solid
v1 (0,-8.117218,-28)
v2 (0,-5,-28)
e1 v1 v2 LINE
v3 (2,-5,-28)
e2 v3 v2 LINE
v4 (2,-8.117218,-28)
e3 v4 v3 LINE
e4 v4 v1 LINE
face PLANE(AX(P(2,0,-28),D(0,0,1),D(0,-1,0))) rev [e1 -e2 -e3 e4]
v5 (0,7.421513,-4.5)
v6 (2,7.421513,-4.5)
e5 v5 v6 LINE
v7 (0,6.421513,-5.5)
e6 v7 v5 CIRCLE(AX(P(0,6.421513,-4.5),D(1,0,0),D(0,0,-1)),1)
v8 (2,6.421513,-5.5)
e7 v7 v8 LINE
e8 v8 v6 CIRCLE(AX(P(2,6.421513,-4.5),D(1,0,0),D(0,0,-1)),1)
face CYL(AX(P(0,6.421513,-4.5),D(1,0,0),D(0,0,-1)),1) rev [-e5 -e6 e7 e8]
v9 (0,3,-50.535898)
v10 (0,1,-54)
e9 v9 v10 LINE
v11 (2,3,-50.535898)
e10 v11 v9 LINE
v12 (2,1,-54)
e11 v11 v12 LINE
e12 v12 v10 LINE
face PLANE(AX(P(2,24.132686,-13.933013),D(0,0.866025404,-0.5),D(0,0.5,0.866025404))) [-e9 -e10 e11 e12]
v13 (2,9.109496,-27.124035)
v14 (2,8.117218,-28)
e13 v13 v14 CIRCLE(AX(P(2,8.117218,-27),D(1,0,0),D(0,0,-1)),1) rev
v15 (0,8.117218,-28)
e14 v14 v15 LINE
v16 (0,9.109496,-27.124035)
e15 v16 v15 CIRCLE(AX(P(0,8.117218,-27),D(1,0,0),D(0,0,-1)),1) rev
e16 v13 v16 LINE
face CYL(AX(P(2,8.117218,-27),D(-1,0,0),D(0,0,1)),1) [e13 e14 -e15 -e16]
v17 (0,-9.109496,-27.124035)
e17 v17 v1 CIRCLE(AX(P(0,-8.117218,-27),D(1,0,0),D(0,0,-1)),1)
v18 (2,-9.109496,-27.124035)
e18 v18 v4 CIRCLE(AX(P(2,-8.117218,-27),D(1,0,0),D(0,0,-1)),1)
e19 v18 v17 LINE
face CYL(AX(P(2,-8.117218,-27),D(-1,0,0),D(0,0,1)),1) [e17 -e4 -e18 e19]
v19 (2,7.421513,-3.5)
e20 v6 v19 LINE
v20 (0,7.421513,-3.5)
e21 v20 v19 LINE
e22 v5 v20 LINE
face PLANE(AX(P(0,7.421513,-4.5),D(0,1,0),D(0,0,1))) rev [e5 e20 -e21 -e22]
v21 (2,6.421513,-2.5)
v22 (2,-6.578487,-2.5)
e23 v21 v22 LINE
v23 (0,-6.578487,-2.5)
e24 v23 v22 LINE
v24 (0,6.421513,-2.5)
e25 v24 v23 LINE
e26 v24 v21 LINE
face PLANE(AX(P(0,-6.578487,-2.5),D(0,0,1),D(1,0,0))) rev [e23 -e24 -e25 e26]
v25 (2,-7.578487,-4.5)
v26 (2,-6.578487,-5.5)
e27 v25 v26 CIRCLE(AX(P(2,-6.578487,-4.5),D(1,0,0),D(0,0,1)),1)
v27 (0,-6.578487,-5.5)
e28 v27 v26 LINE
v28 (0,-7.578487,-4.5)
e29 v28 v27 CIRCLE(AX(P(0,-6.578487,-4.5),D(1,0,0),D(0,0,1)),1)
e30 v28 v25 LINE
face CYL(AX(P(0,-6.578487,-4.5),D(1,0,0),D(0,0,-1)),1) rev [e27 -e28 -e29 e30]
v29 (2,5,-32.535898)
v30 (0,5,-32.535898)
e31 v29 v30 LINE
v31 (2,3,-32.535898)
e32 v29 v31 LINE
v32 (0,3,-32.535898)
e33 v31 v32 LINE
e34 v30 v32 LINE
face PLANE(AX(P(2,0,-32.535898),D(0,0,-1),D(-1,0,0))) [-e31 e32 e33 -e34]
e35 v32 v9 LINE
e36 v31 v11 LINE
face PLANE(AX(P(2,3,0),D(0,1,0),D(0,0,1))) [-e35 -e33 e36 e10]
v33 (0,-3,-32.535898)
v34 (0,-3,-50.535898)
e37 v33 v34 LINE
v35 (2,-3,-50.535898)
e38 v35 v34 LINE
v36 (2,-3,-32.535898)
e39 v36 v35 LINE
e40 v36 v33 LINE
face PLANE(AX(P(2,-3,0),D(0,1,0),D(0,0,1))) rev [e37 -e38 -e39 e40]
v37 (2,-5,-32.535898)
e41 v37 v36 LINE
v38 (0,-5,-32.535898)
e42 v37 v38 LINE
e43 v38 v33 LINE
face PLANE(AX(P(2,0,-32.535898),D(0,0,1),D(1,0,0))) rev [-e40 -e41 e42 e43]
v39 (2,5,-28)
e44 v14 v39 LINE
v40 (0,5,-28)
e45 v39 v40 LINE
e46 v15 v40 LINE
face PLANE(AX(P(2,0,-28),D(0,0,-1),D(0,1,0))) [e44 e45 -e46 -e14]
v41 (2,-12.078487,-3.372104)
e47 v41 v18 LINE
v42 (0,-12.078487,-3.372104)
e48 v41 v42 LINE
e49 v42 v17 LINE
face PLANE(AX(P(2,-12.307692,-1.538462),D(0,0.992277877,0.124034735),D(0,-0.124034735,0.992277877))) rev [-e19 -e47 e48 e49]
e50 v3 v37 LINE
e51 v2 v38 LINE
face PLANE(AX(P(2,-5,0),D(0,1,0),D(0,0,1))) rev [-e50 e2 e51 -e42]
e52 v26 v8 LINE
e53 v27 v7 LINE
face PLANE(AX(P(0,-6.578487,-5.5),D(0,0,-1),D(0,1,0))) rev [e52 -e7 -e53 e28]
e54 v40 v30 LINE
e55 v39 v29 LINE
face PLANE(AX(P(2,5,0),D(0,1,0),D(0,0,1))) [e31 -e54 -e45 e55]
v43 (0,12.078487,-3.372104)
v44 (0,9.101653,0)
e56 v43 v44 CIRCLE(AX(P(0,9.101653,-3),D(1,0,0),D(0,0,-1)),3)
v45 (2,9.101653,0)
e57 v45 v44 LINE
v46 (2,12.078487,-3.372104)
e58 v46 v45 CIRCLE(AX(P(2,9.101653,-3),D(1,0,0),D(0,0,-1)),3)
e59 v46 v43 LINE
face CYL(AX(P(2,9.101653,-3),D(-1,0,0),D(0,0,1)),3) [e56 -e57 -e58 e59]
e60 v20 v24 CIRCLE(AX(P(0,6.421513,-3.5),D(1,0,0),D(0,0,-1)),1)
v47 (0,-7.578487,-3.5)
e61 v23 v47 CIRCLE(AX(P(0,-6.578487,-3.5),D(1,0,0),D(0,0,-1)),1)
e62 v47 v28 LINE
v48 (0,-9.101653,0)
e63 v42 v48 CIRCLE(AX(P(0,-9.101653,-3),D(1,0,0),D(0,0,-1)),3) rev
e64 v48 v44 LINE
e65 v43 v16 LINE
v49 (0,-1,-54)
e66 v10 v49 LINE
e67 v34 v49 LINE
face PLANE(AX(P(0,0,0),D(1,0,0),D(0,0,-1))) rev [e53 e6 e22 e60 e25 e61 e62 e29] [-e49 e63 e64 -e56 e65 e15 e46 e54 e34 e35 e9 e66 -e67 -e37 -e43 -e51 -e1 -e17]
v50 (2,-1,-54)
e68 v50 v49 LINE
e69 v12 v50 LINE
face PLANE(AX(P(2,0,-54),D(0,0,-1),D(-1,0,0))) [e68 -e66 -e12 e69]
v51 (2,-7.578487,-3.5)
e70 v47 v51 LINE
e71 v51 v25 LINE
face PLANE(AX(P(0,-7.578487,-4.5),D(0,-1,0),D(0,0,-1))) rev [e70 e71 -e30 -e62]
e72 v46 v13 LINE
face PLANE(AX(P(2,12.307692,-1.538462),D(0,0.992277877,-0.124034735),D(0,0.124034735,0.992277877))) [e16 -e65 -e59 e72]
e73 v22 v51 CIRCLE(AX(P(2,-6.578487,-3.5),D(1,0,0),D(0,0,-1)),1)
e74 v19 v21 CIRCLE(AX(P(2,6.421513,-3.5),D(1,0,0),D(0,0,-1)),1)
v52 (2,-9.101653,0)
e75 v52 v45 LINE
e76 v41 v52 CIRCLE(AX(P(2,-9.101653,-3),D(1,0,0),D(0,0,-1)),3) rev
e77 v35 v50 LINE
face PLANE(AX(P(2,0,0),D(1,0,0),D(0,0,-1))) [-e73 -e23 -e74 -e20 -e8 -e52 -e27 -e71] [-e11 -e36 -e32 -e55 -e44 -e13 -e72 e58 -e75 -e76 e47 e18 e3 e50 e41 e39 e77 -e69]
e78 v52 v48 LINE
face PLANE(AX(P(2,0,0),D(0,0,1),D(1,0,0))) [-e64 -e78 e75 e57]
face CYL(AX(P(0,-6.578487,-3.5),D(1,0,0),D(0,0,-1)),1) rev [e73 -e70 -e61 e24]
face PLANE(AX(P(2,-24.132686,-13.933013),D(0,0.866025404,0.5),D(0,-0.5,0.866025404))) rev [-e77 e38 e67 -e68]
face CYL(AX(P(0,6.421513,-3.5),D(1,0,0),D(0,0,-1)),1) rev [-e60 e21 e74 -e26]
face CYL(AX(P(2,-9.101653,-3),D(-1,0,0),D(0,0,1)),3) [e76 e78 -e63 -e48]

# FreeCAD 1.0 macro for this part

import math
import FreeCAD as App
import Part
import Sketcher

V = App.Vector
Q = App.Units.Quantity

doc = App.newDocument("Part")
body = doc.addObject("PartDesign::Body", "Body")

sketch1 = body.newObject("Sketcher::SketchObject", "Sketch")
sketch1.AttachmentSupport = (doc.getObject("YZ_Plane"), [""])
sketch1.MapMode = "FlatFace"
sketch1.addGeometry([
    Part.LineSegment(V(9.101653, 0, 0), V(-9.101653, 0, 0)),
    Part.ArcOfCircle(Part.Circle(V(-9.101653, -3, 0), V(0, 0, 1), 3), math.radians(90), math.radians(187.125016)),
    Part.LineSegment(V(-12.078487, -3.372104, 0), V(-9.109496, -27.124035, 0)),
    Part.ArcOfCircle(Part.Circle(V(-8.117218, -27, 0), V(0, 0, 1), 1), math.radians(-172.874984), math.radians(-90)),
    Part.LineSegment(V(-8.117218, -28, 0), V(-5, -28, 0)),
    Part.LineSegment(V(-5, -28, 0), V(-5, -32.535898, 0)),
    Part.LineSegment(V(-5, -32.535898, 0), V(-3, -32.535898, 0)),
    Part.LineSegment(V(-3, -32.535898, 0), V(-3, -50.535898, 0)),
    Part.LineSegment(V(-3, -50.535898, 0), V(-1, -54, 0)),
    Part.LineSegment(V(-1, -54, 0), V(1, -54, 0)),
    Part.LineSegment(V(1, -54, 0), V(3, -50.535898, 0)),
    Part.LineSegment(V(3, -50.535898, 0), V(3, -32.535898, 0)),
    Part.LineSegment(V(3, -32.535898, 0), V(5, -32.535898, 0)),
    Part.LineSegment(V(5, -32.535898, 0), V(5, -28, 0)),
    Part.LineSegment(V(5, -28, 0), V(8.117218, -28, 0)),
    Part.ArcOfCircle(Part.Circle(V(8.117218, -27, 0), V(0, 0, 1), 1), math.radians(-90), math.radians(-7.125016)),
    Part.LineSegment(V(9.109496, -27.124035, 0), V(12.078487, -3.372104, 0)),
    Part.ArcOfCircle(Part.Circle(V(9.101653, -3, 0), V(0, 0, 1), 3), math.radians(-7.125016), math.radians(90)),
], False)
sketch1.addConstraint([
    Sketcher.Constraint("Tangent", 0, 2, 1, 1),
    Sketcher.Constraint("Tangent", 1, 2, 2, 1),
    Sketcher.Constraint("Tangent", 2, 2, 3, 1),
    Sketcher.Constraint("Tangent", 3, 2, 4, 1),
    Sketcher.Constraint("Coincident", 4, 2, 5, 1),
    Sketcher.Constraint("Coincident", 5, 2, 6, 1),
    Sketcher.Constraint("Coincident", 6, 2, 7, 1),
    Sketcher.Constraint("Coincident", 7, 2, 8, 1),
    Sketcher.Constraint("Coincident", 8, 2, 9, 1),
    Sketcher.Constraint("Coincident", 9, 2, 10, 1),
    Sketcher.Constraint("Coincident", 10, 2, 11, 1),
    Sketcher.Constraint("Coincident", 11, 2, 12, 1),
    Sketcher.Constraint("Coincident", 12, 2, 13, 1),
    Sketcher.Constraint("Coincident", 13, 2, 14, 1),
    Sketcher.Constraint("Tangent", 14, 2, 15, 1),
    Sketcher.Constraint("Tangent", 15, 2, 16, 1),
    Sketcher.Constraint("Tangent", 16, 2, 17, 1),
    Sketcher.Constraint("Tangent", 17, 2, 0, 1),
    Sketcher.Constraint("Horizontal", 0),
    Sketcher.Constraint("Horizontal", 4),
    Sketcher.Constraint("Vertical", 5),
    Sketcher.Constraint("Horizontal", 6),
    Sketcher.Constraint("Vertical", 7),
    Sketcher.Constraint("Horizontal", 9),
    Sketcher.Constraint("Vertical", 11),
    Sketcher.Constraint("Horizontal", 12),
    Sketcher.Constraint("Vertical", 13),
    Sketcher.Constraint("Horizontal", 14),
    Sketcher.Constraint("Equal", 3, 15),
    Sketcher.Constraint("Equal", 1, 17),
    Sketcher.Constraint("Symmetric", 0, 2, 17, 2, -1, 1),
    Sketcher.Constraint("Symmetric", 3, 3, 15, 3, -2),
    Sketcher.Constraint("Symmetric", 7, 2, 10, 2, -2),
    Sketcher.Constraint("Symmetric", 5, 2, 12, 2, -2),
    Sketcher.Constraint("Equal", 6, 9),
    Sketcher.Constraint("Equal", 8, 10),
    Sketcher.Constraint("Radius", 1, Q("3 mm")),
    Sketcher.Constraint("Radius", 3, Q("1 mm")),
    Sketcher.Constraint("DistanceX", 6, 1, 6, 2, Q("2 mm")),
    Sketcher.Constraint("DistanceY", 7, 2, 7, 1, Q("18 mm")),
    Sketcher.Constraint("Angle", 8, Q("-60 deg")),
    Sketcher.Constraint("Distance", 8, Q("4 mm")),
    Sketcher.Constraint("DistanceY", 3, 3, -1, 1, Q("27 mm")),
    Sketcher.Constraint("DistanceY", 8, 2, -1, 1, Q("54 mm")),
    Sketcher.Constraint("DistanceX", 0, 2, 0, 1, Q("18.203307 mm")),
    Sketcher.Constraint("DistanceX", 4, 1, 4, 2, Q("3.117218 mm")),
])
pad1 = body.newObject("PartDesign::Pad", "Pad")
pad1.Profile = sketch1
pad1.Length = 2

sketch2 = body.newObject("Sketcher::SketchObject", "Sketch001")
sketch2.AttachmentSupport = (doc.getObject("YZ_Plane"), [""])
sketch2.MapMode = "FlatFace"
sketch2.AttachmentOffset = App.Placement(V(0, 0, 2), App.Rotation())
sketch2.addGeometry([
    Part.LineSegment(V(-7.578487, -3.5, 0), V(-7.578487, -4.5, 0)),
    Part.ArcOfCircle(Part.Circle(V(-6.578487, -4.5, 0), V(0, 0, 1), 1), math.radians(-180), math.radians(-90)),
    Part.LineSegment(V(-6.578487, -5.5, 0), V(6.421513, -5.5, 0)),
    Part.ArcOfCircle(Part.Circle(V(6.421513, -4.5, 0), V(0, 0, 1), 1), math.radians(-90), math.radians(0)),
    Part.LineSegment(V(7.421513, -4.5, 0), V(7.421513, -3.5, 0)),
    Part.ArcOfCircle(Part.Circle(V(6.421513, -3.5, 0), V(0, 0, 1), 1), math.radians(0), math.radians(90)),
    Part.LineSegment(V(6.421513, -2.5, 0), V(-6.578487, -2.5, 0)),
    Part.ArcOfCircle(Part.Circle(V(-6.578487, -3.5, 0), V(0, 0, 1), 1), math.radians(90), math.radians(180)),
], False)
sketch2.addConstraint([
    Sketcher.Constraint("Tangent", 0, 2, 1, 1),
    Sketcher.Constraint("Tangent", 1, 2, 2, 1),
    Sketcher.Constraint("Tangent", 2, 2, 3, 1),
    Sketcher.Constraint("Tangent", 3, 2, 4, 1),
    Sketcher.Constraint("Tangent", 4, 2, 5, 1),
    Sketcher.Constraint("Tangent", 5, 2, 6, 1),
    Sketcher.Constraint("Tangent", 6, 2, 7, 1),
    Sketcher.Constraint("Tangent", 7, 2, 0, 1),
    Sketcher.Constraint("Vertical", 0),
    Sketcher.Constraint("Horizontal", 2),
    Sketcher.Constraint("Vertical", 4),
    Sketcher.Constraint("Horizontal", 6),
    Sketcher.Constraint("Equal", 1, 3),
    Sketcher.Constraint("Equal", 3, 5),
    Sketcher.Constraint("Equal", 5, 7),
    Sketcher.Constraint("Radius", 1, Q("1 mm")),
    Sketcher.Constraint("DistanceX", 2, 1, 2, 2, Q("13 mm")),
    Sketcher.Constraint("DistanceY", 0, 2, 0, 1, Q("1 mm")),
    Sketcher.Constraint("DistanceY", 1, 3, -1, 1, Q("4.5 mm")),
    Sketcher.Constraint("DistanceX", 1, 3, -1, 1, Q("6.578487 mm")),
])
pocket1 = body.newObject("PartDesign::Pocket", "Pocket")
pocket1.Profile = sketch2
pocket1.Type = "ThroughAll"

doc.recompute()
